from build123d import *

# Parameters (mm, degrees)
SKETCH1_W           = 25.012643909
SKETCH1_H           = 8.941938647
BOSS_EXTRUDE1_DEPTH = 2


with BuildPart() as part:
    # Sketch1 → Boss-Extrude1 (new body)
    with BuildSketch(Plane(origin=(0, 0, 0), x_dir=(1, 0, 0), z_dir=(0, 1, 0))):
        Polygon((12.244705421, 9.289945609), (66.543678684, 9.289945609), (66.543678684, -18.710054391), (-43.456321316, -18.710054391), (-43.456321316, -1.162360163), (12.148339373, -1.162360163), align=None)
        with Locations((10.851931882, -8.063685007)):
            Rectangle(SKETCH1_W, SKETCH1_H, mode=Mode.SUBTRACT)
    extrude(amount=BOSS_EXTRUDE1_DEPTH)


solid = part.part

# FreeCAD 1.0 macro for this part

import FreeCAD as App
import Part
import Sketcher
Q = App.Units.Quantity


def add_polygon(sketch, points):
    """Adds a closed chain of lines whose ends are joined by coincident constraints."""
    first, n = sketch.GeometryCount, len(points)
    for a, b in zip(points, points[1:] + points[:1]):
        sketch.addGeometry(Part.LineSegment(App.Vector(*a, 0), App.Vector(*b, 0)), False)
    for i in range(n):
        sketch.addConstraint(Sketcher.Constraint("Coincident", first + i, 2, first + (i + 1) % n, 1))

doc = App.newDocument("Part")
body = doc.addObject("PartDesign::Body", "Body")

# Sketch on XZ plane
sketch1 = body.newObject("Sketcher::SketchObject", "Sketch")
sketch1.AttachmentSupport = (doc.getObject("XZ_Plane"), [""])
sketch1.MapMode = "FlatFace"
add_polygon(sketch1, [(67, -9), (12, -9), (12, 1), (-43, 1), (-43, 19), (67, 19)])  # lines 0-5
add_polygon(sketch1, [(-2, 13), (-2, 4), (23, 4), (23, 13)])  # lines 6-9
sketch1.addConstraint([
    Sketcher.Constraint("Horizontal", 0),
    Sketcher.Constraint("Horizontal", 2),
    Sketcher.Constraint("Vertical", 3),
    Sketcher.Constraint("Horizontal", 4),
    Sketcher.Constraint("Vertical", 5),
    Sketcher.Constraint("Vertical", 6),
    Sketcher.Constraint("Horizontal", 7),
    Sketcher.Constraint("Vertical", 8),
    Sketcher.Constraint("Horizontal", 9),
    Sketcher.Constraint("DistanceX", 4, 1, 4, 2, Q("110 mm")),
    Sketcher.Constraint("DistanceY", 5, 2, 5, 1, Q("28 mm")),
    Sketcher.Constraint("DistanceX", 2, 2, 2, 1, Q("55.604661 mm")),
    Sketcher.Constraint("DistanceY", 6, 2, 6, 1, Q("8.941939 mm")),
    Sketcher.Constraint("DistanceY", 0, 2, 8, 2, Q("21.8246 mm")),
    Sketcher.Constraint("Distance", 1, Q("10.45275 mm")),
    Sketcher.Constraint("DistanceX", 0, 2, 0, 1, Q("54.298973 mm")),
    Sketcher.Constraint("DistanceX", 7, 1, 7, 2, Q("25.012644 mm")),
    Sketcher.Constraint("DistanceX", -1, 1, 1, 2, Q("12.148339 mm")),
    Sketcher.Constraint("DistanceY", -1, 1, 1, 2, Q("1.16236 mm")),
    Sketcher.Constraint("DistanceX", 6, 2, -1, 1, Q("1.65439 mm")),
])
pad1 = body.newObject("PartDesign::Pad", "Pad")
pad1.Profile = sketch1
pad1.Length = 2
pad1.Reversed = True

doc.recompute()
